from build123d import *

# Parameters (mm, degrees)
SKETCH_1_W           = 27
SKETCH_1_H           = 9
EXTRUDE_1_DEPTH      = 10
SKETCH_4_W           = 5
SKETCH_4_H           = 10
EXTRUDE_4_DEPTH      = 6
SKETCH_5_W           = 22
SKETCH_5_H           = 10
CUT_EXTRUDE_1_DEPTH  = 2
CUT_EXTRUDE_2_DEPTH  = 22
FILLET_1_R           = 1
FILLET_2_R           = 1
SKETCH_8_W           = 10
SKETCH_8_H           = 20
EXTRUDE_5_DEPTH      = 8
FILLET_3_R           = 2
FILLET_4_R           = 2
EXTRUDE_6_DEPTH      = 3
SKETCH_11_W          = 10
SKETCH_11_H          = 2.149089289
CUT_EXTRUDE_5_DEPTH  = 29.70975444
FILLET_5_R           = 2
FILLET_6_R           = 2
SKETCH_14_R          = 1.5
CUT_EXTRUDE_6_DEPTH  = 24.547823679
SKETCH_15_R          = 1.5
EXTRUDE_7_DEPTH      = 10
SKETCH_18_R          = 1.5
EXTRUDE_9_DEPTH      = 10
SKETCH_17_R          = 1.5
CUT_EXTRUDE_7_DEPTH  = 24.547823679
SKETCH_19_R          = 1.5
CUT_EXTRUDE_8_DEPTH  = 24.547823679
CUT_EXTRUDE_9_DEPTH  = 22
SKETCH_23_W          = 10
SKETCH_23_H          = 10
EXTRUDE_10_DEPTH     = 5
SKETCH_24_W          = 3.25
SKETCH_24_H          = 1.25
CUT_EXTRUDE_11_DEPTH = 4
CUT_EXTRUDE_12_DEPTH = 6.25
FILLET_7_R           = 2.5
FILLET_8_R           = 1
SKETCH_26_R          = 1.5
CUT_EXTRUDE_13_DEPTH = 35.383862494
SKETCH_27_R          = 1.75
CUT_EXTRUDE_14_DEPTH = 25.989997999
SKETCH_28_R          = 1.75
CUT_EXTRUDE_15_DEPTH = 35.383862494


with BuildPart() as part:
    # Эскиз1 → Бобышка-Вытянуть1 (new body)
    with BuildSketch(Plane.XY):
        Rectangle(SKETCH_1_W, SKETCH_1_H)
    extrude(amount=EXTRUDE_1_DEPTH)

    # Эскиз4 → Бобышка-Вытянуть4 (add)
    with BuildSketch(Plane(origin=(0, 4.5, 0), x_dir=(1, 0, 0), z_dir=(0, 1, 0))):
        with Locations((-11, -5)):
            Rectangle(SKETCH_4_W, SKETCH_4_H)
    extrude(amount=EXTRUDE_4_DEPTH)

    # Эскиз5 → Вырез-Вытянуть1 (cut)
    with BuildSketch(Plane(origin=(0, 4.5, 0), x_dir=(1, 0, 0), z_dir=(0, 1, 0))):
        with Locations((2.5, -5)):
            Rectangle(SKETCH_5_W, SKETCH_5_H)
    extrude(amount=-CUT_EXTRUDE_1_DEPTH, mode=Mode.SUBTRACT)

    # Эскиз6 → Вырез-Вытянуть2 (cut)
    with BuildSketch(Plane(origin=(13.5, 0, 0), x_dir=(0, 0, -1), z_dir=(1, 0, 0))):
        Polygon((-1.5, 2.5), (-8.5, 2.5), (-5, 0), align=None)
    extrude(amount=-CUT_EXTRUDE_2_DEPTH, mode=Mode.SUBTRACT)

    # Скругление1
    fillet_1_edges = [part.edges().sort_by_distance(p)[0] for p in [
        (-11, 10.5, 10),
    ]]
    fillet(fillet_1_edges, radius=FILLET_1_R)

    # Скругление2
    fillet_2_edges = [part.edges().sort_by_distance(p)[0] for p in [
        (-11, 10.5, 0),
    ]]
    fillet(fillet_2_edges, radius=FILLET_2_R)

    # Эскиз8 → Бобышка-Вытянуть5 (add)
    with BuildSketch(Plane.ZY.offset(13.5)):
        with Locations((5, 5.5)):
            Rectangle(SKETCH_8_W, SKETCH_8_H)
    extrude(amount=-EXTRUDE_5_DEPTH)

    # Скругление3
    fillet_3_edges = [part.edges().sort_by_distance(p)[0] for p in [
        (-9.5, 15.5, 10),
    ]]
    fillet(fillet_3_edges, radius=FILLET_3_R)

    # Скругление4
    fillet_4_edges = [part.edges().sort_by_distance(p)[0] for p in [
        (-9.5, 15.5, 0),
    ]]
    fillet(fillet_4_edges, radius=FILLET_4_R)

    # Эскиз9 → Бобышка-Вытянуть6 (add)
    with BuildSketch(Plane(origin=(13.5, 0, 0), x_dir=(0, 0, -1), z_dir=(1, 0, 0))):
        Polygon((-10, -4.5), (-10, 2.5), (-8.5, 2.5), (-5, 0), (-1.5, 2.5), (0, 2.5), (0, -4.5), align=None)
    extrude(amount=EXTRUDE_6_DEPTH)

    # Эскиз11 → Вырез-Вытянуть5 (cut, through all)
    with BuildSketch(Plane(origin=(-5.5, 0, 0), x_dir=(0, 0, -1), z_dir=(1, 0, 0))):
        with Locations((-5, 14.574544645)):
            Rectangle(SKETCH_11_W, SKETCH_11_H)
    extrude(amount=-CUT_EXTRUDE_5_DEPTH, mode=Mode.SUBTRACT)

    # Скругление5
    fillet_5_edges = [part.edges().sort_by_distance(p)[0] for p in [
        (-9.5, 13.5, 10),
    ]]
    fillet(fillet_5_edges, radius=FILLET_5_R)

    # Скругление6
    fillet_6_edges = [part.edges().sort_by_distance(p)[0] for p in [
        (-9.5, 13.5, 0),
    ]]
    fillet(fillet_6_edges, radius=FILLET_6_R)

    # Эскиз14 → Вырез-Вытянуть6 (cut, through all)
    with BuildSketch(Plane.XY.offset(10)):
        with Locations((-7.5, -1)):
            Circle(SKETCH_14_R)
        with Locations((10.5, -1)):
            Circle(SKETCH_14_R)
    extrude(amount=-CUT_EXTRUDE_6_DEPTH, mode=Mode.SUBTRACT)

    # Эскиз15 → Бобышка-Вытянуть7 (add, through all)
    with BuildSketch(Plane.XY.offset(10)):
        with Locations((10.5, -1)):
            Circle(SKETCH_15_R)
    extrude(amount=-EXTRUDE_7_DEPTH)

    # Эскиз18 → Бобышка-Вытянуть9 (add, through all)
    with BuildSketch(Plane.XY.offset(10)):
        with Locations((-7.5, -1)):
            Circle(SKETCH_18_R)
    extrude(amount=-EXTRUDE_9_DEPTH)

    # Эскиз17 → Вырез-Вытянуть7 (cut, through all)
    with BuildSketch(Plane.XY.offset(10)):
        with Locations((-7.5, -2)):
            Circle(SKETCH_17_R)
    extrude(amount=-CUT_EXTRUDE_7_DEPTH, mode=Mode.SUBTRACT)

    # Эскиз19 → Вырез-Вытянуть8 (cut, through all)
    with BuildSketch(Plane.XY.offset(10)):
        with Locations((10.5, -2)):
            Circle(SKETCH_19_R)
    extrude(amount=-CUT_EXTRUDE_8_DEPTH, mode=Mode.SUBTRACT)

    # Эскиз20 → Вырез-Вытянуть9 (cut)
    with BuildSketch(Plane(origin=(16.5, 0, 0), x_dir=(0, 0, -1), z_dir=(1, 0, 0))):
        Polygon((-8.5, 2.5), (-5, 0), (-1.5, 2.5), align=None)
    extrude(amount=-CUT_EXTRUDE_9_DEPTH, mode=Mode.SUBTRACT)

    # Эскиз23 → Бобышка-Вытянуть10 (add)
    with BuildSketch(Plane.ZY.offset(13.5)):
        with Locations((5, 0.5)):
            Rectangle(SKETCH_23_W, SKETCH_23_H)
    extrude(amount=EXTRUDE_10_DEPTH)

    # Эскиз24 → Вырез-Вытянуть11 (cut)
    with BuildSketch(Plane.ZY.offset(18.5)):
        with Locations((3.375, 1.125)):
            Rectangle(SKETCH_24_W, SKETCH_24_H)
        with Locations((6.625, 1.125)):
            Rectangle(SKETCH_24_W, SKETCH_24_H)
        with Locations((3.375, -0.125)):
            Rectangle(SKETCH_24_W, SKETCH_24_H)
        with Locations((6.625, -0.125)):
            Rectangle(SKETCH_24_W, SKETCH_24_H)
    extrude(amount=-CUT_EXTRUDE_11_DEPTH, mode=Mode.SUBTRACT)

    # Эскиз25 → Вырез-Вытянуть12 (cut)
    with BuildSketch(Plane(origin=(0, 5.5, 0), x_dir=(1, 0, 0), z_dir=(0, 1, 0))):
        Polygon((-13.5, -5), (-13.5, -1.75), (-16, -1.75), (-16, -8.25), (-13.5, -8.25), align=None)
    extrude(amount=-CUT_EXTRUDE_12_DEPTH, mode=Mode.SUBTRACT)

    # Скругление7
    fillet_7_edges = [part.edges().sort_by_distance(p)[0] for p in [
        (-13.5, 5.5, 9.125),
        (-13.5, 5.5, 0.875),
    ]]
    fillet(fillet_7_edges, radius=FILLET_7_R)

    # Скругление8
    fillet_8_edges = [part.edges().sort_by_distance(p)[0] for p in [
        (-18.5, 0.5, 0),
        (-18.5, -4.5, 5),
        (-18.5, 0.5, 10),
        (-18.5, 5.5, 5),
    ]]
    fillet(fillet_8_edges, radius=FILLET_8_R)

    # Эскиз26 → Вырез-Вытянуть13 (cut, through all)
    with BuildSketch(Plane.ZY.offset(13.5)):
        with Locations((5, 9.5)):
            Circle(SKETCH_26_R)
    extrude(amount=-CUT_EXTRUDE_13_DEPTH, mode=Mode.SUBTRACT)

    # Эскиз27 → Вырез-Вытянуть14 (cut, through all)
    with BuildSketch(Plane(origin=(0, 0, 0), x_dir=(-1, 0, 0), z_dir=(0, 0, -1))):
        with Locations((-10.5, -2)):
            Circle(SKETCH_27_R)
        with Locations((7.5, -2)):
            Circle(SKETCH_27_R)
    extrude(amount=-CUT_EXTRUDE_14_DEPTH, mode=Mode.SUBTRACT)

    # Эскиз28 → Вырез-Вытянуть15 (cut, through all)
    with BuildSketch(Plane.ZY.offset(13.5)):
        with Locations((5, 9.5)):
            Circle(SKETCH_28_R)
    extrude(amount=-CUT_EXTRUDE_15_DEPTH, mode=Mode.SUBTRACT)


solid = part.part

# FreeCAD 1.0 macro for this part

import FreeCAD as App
import Part
import Sketcher


def edges_at(feature, points):
    """Names of the edges that pass closest to the given points."""
    edges = feature.Shape.Edges
    near = lambda p: min(range(len(edges)), key=lambda i: edges[i].distToShape(Part.Vertex(*p))[0])
    return sorted({f"Edge{near(p) + 1}" for p in points})


def add_polygon(sketch, points):
    """Adds a closed chain of lines whose ends are joined by coincident constraints."""
    first, n = sketch.GeometryCount, len(points)
    for a, b in zip(points, points[1:] + points[:1]):
        sketch.addGeometry(Part.LineSegment(App.Vector(*a, 0), App.Vector(*b, 0)), False)
    for i in range(n):
        sketch.addConstraint(Sketcher.Constraint("Coincident", first + i, 2, first + (i + 1) % n, 1))

doc = App.newDocument("Part")
body = doc.addObject("PartDesign::Body", "Body")

sketch1 = body.newObject("Sketcher::SketchObject", "Sketch")
sketch1.AttachmentSupport = (doc.getObject("XY_Plane"), [""])
sketch1.MapMode = "FlatFace"
add_polygon(sketch1, [(-14, 4), (-14, -4), (14, -4), (14, 4)])
sketch1.addConstraint([
    Sketcher.Constraint("Vertical", 0),
    Sketcher.Constraint("Horizontal", 1),
    Sketcher.Constraint("Vertical", 2),
    Sketcher.Constraint("Horizontal", 3),
    Sketcher.Constraint("Symmetric", 0, 2, 2, 2, -1, 1),
    Sketcher.Constraint("DistanceX", 1, 1, 1, 2, 27.0),
    Sketcher.Constraint("DistanceY", 0, 2, 0, 1, 9.0),
])
pad1 = body.newObject("PartDesign::Pad", "Pad")
pad1.Profile = sketch1
pad1.Length = 10

sketch2 = body.newObject("Sketcher::SketchObject", "Sketch001")
sketch2.AttachmentSupport = (doc.getObject("XZ_Plane"), [""])
sketch2.MapMode = "FlatFace"
sketch2.AttachmentOffset = App.Placement(App.Vector(0, 0, -4.5), App.Rotation())
add_polygon(sketch2, [(-14, 0), (-14, 10), (-8, 10), (-8, 0)])
sketch2.addConstraint([
    Sketcher.Constraint("Vertical", 0),
    Sketcher.Constraint("Horizontal", 1),
    Sketcher.Constraint("Vertical", 2),
    Sketcher.Constraint("Horizontal", 3),
    Sketcher.Constraint("PointOnObject", 2, 2, -1),
    Sketcher.Constraint("DistanceX", 1, 1, 1, 2, 5.0),
    Sketcher.Constraint("DistanceY", 0, 1, 0, 2, 10.0),
    Sketcher.Constraint("DistanceX", 0, 2, -1, 1, 13.5),
])
pad2 = body.newObject("PartDesign::Pad", "Pad001")
pad2.Profile = sketch2
pad2.Length = 6
pad2.Reversed = True

sketch3 = body.newObject("Sketcher::SketchObject", "Sketch002")
sketch3.AttachmentSupport = (doc.getObject("XZ_Plane"), [""])
sketch3.MapMode = "FlatFace"
sketch3.AttachmentOffset = App.Placement(App.Vector(0, 0, -4.5), App.Rotation())
add_polygon(sketch3, [(-8, 0), (-8, 10), (14, 10), (14, 0)])
sketch3.addConstraint([
    Sketcher.Constraint("Vertical", 0),
    Sketcher.Constraint("Horizontal", 1),
    Sketcher.Constraint("Vertical", 2),
    Sketcher.Constraint("Horizontal", 3),
    Sketcher.Constraint("PointOnObject", 2, 2, -1),
    Sketcher.Constraint("DistanceX", 1, 1, 1, 2, 22.0),
    Sketcher.Constraint("DistanceY", 0, 1, 0, 2, 10.0),
    Sketcher.Constraint("DistanceX", 0, 2, -1, 1, 8.5),
])
pocket1 = body.newObject("PartDesign::Pocket", "Pocket")
pocket1.Profile = sketch3
pocket1.Length = 2
pocket1.Reversed = True

sketch4 = body.newObject("Sketcher::SketchObject", "Sketch003")
sketch4.AttachmentSupport = (doc.getObject("YZ_Plane"), [""])
sketch4.MapMode = "FlatFace"
sketch4.AttachmentOffset = App.Placement(App.Vector(0, 0, 13.5), App.Rotation())
add_polygon(sketch4, [(2.5, 1.5), (2.5, 8.5), (0, 5)])
sketch4.addConstraint([
    Sketcher.Constraint("Vertical", 0),
    Sketcher.Constraint("PointOnObject", 1, 2, -2),
    Sketcher.Constraint("Equal", 1, 2),
    Sketcher.Constraint("DistanceY", 0, 1, 0, 2, 7.0),
    Sketcher.Constraint("DistanceY", -1, 1, 1, 2, 5.0),
    Sketcher.Constraint("DistanceX", -1, 1, 0, 2, 2.5),
])
pocket2 = body.newObject("PartDesign::Pocket", "Pocket001")
pocket2.Profile = sketch4
pocket2.Length = 22
doc.recompute()

fillet = body.newObject("PartDesign::Fillet", "Fillet")
fillet.Base = (pocket2, edges_at(pocket2, [(-11, 10.5, 10)]))
fillet.Radius = 1
doc.recompute()

fillet2 = body.newObject("PartDesign::Fillet", "Fillet001")
fillet2.Base = (fillet, edges_at(fillet, [(-11, 10.5, 0)]))
fillet2.Radius = 1

sketch5 = body.newObject("Sketcher::SketchObject", "Sketch004")
sketch5.AttachmentSupport = (doc.getObject("YZ_Plane"), [""])
sketch5.MapMode = "FlatFace"
sketch5.AttachmentOffset = App.Placement(App.Vector(0, 0, -13.5), App.Rotation())
add_polygon(sketch5, [(16, 0), (-4, 0), (-4, 10), (16, 10)])
sketch5.addConstraint([
    Sketcher.Constraint("Horizontal", 0),
    Sketcher.Constraint("Vertical", 1),
    Sketcher.Constraint("Horizontal", 2),
    Sketcher.Constraint("Vertical", 3),
    Sketcher.Constraint("PointOnObject", 0, 2, -1),
    Sketcher.Constraint("DistanceX", 0, 2, 0, 1, 20.0),
    Sketcher.Constraint("DistanceY", 1, 1, 1, 2, 10.0),
    Sketcher.Constraint("DistanceX", 0, 2, -1, 1, 4.5),
])
pad3 = body.newObject("PartDesign::Pad", "Pad002")
pad3.Profile = sketch5
pad3.Length = 8
doc.recompute()

fillet3 = body.newObject("PartDesign::Fillet", "Fillet002")
fillet3.Base = (pad3, edges_at(pad3, [(-9.5, 15.5, 10)]))
fillet3.Radius = 2
doc.recompute()

fillet4 = body.newObject("PartDesign::Fillet", "Fillet003")
fillet4.Base = (fillet3, edges_at(fillet3, [(-9.5, 15.5, 0)]))
fillet4.Radius = 2

sketch6 = body.newObject("Sketcher::SketchObject", "Sketch005")
sketch6.AttachmentSupport = (doc.getObject("YZ_Plane"), [""])
sketch6.MapMode = "FlatFace"
sketch6.AttachmentOffset = App.Placement(App.Vector(0, 0, 13.5), App.Rotation())
add_polygon(sketch6, [(2.5, 10), (-4.5, 10), (-4.5, 0), (2.5, 0), (2.5, 1.5), (0, 5), (2.5, 8.5)])
sketch6.addConstraint([
    Sketcher.Constraint("Horizontal", 0),
    Sketcher.Constraint("Vertical", 1),
    Sketcher.Constraint("Horizontal", 2),
    Sketcher.Constraint("Vertical", 3),
    Sketcher.Constraint("Vertical", 6),
    Sketcher.Constraint("PointOnObject", 1, 2, -1),
    Sketcher.Constraint("PointOnObject", 4, 2, -2),
    Sketcher.Constraint("Vertical", 3, 2, 5, 2),
    Sketcher.Constraint("Equal", 3, 6),
    Sketcher.Constraint("Equal", 4, 5),
    Sketcher.Constraint("DistanceX", 0, 2, 0, 1, 7.0),
    Sketcher.Constraint("DistanceY", 1, 2, 1, 1, 10.0),
    Sketcher.Constraint("DistanceY", 3, 1, 3, 2, 1.5),
    Sketcher.Constraint("DistanceX", 0, 2, -1, 1, 4.5),
])
pad4 = body.newObject("PartDesign::Pad", "Pad003")
pad4.Profile = sketch6
pad4.Length = 3

sketch7 = body.newObject("Sketcher::SketchObject", "Sketch006")
sketch7.AttachmentSupport = (doc.getObject("YZ_Plane"), [""])
sketch7.MapMode = "FlatFace"
sketch7.AttachmentOffset = App.Placement(App.Vector(0, 0, -5.5), App.Rotation())
add_polygon(sketch7, [(15.6, 10), (13.5, 10), (13.5, 0), (15.6, 0)])
sketch7.addConstraint([
    Sketcher.Constraint("Horizontal", 0),
    Sketcher.Constraint("Vertical", 1),
    Sketcher.Constraint("Horizontal", 2),
    Sketcher.Constraint("Vertical", 3),
    Sketcher.Constraint("PointOnObject", 1, 2, -1),
    Sketcher.Constraint("DistanceY", 1, 2, 1, 1, 10.0),
    Sketcher.Constraint("DistanceX", -1, 1, 0, 2, 13.5),
    Sketcher.Constraint("DistanceX", 0, 2, 0, 1, 2.149089),
])
pocket3 = body.newObject("PartDesign::Pocket", "Pocket002")
pocket3.Profile = sketch7
pocket3.Type = "ThroughAll"
doc.recompute()

fillet5 = body.newObject("PartDesign::Fillet", "Fillet004")
fillet5.Base = (pocket3, edges_at(pocket3, [(-9.5, 13.5, 10)]))
fillet5.Radius = 2
doc.recompute()

fillet6 = body.newObject("PartDesign::Fillet", "Fillet005")
fillet6.Base = (fillet5, edges_at(fillet5, [(-9.5, 13.5, 0)]))
fillet6.Radius = 2

sketch8 = body.newObject("Sketcher::SketchObject", "Sketch007")
sketch8.AttachmentSupport = (doc.getObject("XY_Plane"), [""])
sketch8.MapMode = "FlatFace"
sketch8.AttachmentOffset = App.Placement(App.Vector(0, 0, 10), App.Rotation())
sketch8.addGeometry([
    Part.Circle(App.Vector(-7.5, -1, 0), App.Vector(0, 0, 1), 1.5),
    Part.Circle(App.Vector(10.5, -1, 0), App.Vector(0, 0, 1), 1.5),
], False)
sketch8.addConstraint([
    Sketcher.Constraint("Equal", 0, 1),
    Sketcher.Constraint("Horizontal", 0, 3, 1, 3),
    Sketcher.Constraint("Diameter", 0, 3.0),
    Sketcher.Constraint("DistanceY", 0, 3, -1, 1, 1.0),
    Sketcher.Constraint("DistanceX", 0, 3, 1, 3, 18.0),
    Sketcher.Constraint("DistanceX", 0, 3, -1, 1, 7.5),
])
pocket4 = body.newObject("PartDesign::Pocket", "Pocket003")
pocket4.Profile = sketch8
pocket4.Type = "ThroughAll"

sketch9 = body.newObject("Sketcher::SketchObject", "Sketch008")
sketch9.AttachmentSupport = (doc.getObject("XY_Plane"), [""])
sketch9.MapMode = "FlatFace"
sketch9.AttachmentOffset = App.Placement(App.Vector(0, 0, 10), App.Rotation())
sketch9.addGeometry(Part.Circle(App.Vector(10.5, -1, 0), App.Vector(0, 0, 1), 1.5), False)
sketch9.addConstraint([
    Sketcher.Constraint("Diameter", 0, 3.0),
    Sketcher.Constraint("DistanceY", 0, 3, -1, 1, 1.0),
    Sketcher.Constraint("DistanceX", -1, 1, 0, 3, 10.5),
])
pad5 = body.newObject("PartDesign::Pad", "Pad004")
pad5.Profile = sketch9
pad5.Length = 10
pad5.Reversed = True

sketch10 = body.newObject("Sketcher::SketchObject", "Sketch009")
sketch10.AttachmentSupport = (doc.getObject("XY_Plane"), [""])
sketch10.MapMode = "FlatFace"
sketch10.AttachmentOffset = App.Placement(App.Vector(0, 0, 10), App.Rotation())
sketch10.addGeometry(Part.Circle(App.Vector(-7.5, -1, 0), App.Vector(0, 0, 1), 1.5), False)
sketch10.addConstraint([
    Sketcher.Constraint("Diameter", 0, 3.0),
    Sketcher.Constraint("DistanceY", 0, 3, -1, 1, 1.0),
    Sketcher.Constraint("DistanceX", 0, 3, -1, 1, 7.5),
])
pad6 = body.newObject("PartDesign::Pad", "Pad005")
pad6.Profile = sketch10
pad6.Length = 10
pad6.Reversed = True

sketch11 = body.newObject("Sketcher::SketchObject", "Sketch010")
sketch11.AttachmentSupport = (doc.getObject("XY_Plane"), [""])
sketch11.MapMode = "FlatFace"
sketch11.AttachmentOffset = App.Placement(App.Vector(0, 0, 10), App.Rotation())
sketch11.addGeometry(Part.Circle(App.Vector(-7.5, -2, 0), App.Vector(0, 0, 1), 1.5), False)
sketch11.addConstraint([
    Sketcher.Constraint("Diameter", 0, 3.0),
    Sketcher.Constraint("DistanceY", 0, 3, -1, 1, 2.0),
    Sketcher.Constraint("DistanceX", 0, 3, -1, 1, 7.5),
])
pocket5 = body.newObject("PartDesign::Pocket", "Pocket004")
pocket5.Profile = sketch11
pocket5.Type = "ThroughAll"

sketch12 = body.newObject("Sketcher::SketchObject", "Sketch011")
sketch12.AttachmentSupport = (doc.getObject("XY_Plane"), [""])
sketch12.MapMode = "FlatFace"
sketch12.AttachmentOffset = App.Placement(App.Vector(0, 0, 10), App.Rotation())
sketch12.addGeometry(Part.Circle(App.Vector(10.5, -2, 0), App.Vector(0, 0, 1), 1.5), False)
sketch12.addConstraint([
    Sketcher.Constraint("Diameter", 0, 3.0),
    Sketcher.Constraint("DistanceY", 0, 3, -1, 1, 2.0),
    Sketcher.Constraint("DistanceX", -1, 1, 0, 3, 10.5),
])
pocket6 = body.newObject("PartDesign::Pocket", "Pocket005")
pocket6.Profile = sketch12
pocket6.Type = "ThroughAll"

sketch13 = body.newObject("Sketcher::SketchObject", "Sketch012")
sketch13.AttachmentSupport = (doc.getObject("YZ_Plane"), [""])
sketch13.MapMode = "FlatFace"
sketch13.AttachmentOffset = App.Placement(App.Vector(0, 0, 16.5), App.Rotation())
add_polygon(sketch13, [(2.5, 8.5), (0, 5), (2.5, 1.5)])
sketch13.addConstraint([
    Sketcher.Constraint("Vertical", 2),
    Sketcher.Constraint("PointOnObject", 0, 2, -2),
    Sketcher.Constraint("Equal", 0, 1),
    Sketcher.Constraint("DistanceY", 2, 1, 2, 2, 7.0),
    Sketcher.Constraint("DistanceY", -1, 1, 0, 2, 5.0),
    Sketcher.Constraint("DistanceX", -1, 1, 1, 2, 2.5),
])
pocket7 = body.newObject("PartDesign::Pocket", "Pocket006")
pocket7.Profile = sketch13
pocket7.Length = 22

sketch14 = body.newObject("Sketcher::SketchObject", "Sketch013")
sketch14.AttachmentSupport = (doc.getObject("YZ_Plane"), [""])
sketch14.MapMode = "FlatFace"
sketch14.AttachmentOffset = App.Placement(App.Vector(0, 0, -13.5), App.Rotation())
add_polygon(sketch14, [(6, 0), (-4, 0), (-4, 10), (6, 10)])
sketch14.addConstraint([
    Sketcher.Constraint("Horizontal", 0),
    Sketcher.Constraint("Vertical", 1),
    Sketcher.Constraint("Horizontal", 2),
    Sketcher.Constraint("Vertical", 3),
    Sketcher.Constraint("PointOnObject", 0, 2, -1),
    Sketcher.Constraint("Equal", 2, 1),
    Sketcher.Constraint("DistanceX", 0, 2, 0, 1, 10.0),
    Sketcher.Constraint("DistanceX", 0, 2, -1, 1, 4.5),
])
pad7 = body.newObject("PartDesign::Pad", "Pad006")
pad7.Profile = sketch14
pad7.Length = 5
pad7.Reversed = True

sketch15 = body.newObject("Sketcher::SketchObject", "Sketch014")
sketch15.AttachmentSupport = (doc.getObject("YZ_Plane"), [""])
sketch15.MapMode = "FlatFace"
sketch15.AttachmentOffset = App.Placement(App.Vector(0, 0, -18.5), App.Rotation())
add_polygon(sketch15, [(1.8, 1.8), (-0.8, 1.8), (-0.8, 8.2), (1.8, 8.2)])
sketch15.addConstraint([
    Sketcher.Constraint("Horizontal", 0),
    Sketcher.Constraint("Vertical", 1),
    Sketcher.Constraint("Horizontal", 2),
    Sketcher.Constraint("Vertical", 3),
    Sketcher.Constraint("DistanceX", 0, 2, 0, 1, 2.5),
    Sketcher.Constraint("DistanceY", 1, 1, 1, 2, 6.5),
    Sketcher.Constraint("DistanceX", 0, 2, -1, 1, 0.75),
    Sketcher.Constraint("DistanceY", -1, 1, 0, 2, 1.75),
])
pocket8 = body.newObject("PartDesign::Pocket", "Pocket007")
pocket8.Profile = sketch15
pocket8.Length = 4
pocket8.Reversed = True

sketch16 = body.newObject("Sketcher::SketchObject", "Sketch015")
sketch16.AttachmentSupport = (doc.getObject("XZ_Plane"), [""])
sketch16.MapMode = "FlatFace"
sketch16.AttachmentOffset = App.Placement(App.Vector(0, 0, -5.5), App.Rotation())
add_polygon(sketch16, [(-13.5, 1.8), (-16, 1.8), (-16, 8.2), (-13.5, 8.2)])
sketch16.addConstraint([
    Sketcher.Constraint("Horizontal", 0),
    Sketcher.Constraint("Vertical", 1),
    Sketcher.Constraint("Horizontal", 2),
    Sketcher.Constraint("Vertical", 3),
    Sketcher.Constraint("DistanceX", 0, 2, 0, 1, 2.5),
    Sketcher.Constraint("DistanceY", 1, 1, 1, 2, 6.5),
    Sketcher.Constraint("DistanceX", 0, 2, -1, 1, 16.0),
    Sketcher.Constraint("DistanceY", -1, 1, 0, 2, 1.75),
])
pocket9 = body.newObject("PartDesign::Pocket", "Pocket008")
pocket9.Profile = sketch16
pocket9.Length = 6.25
pocket9.Reversed = True
doc.recompute()

fillet7 = body.newObject("PartDesign::Fillet", "Fillet006")
fillet7.Base = (pocket9, edges_at(pocket9, [(-13.5, 5.5, 9.125), (-13.5, 5.5, 0.875)]))
fillet7.Radius = 2.5
doc.recompute()

fillet8 = body.newObject("PartDesign::Fillet", "Fillet007")
fillet8.Base = (fillet7, edges_at(fillet7, [
    (-18.5, 0.5, 0),
    (-18.5, -4.5, 5),
    (-18.5, 0.5, 10),
    (-18.5, 5.5, 5),
]))
fillet8.Radius = 1

sketch17 = body.newObject("Sketcher::SketchObject", "Sketch016")
sketch17.AttachmentSupport = (doc.getObject("YZ_Plane"), [""])
sketch17.MapMode = "FlatFace"
sketch17.AttachmentOffset = App.Placement(App.Vector(0, 0, -13.5), App.Rotation())
sketch17.addGeometry(Part.Circle(App.Vector(9.5, 5, 0), App.Vector(0, 0, 1), 1.5), False)
sketch17.addConstraint([
    Sketcher.Constraint("Diameter", 0, 3.0),
    Sketcher.Constraint("DistanceY", -1, 1, 0, 3, 5.0),
    Sketcher.Constraint("DistanceX", -1, 1, 0, 3, 9.5),
])
pocket10 = body.newObject("PartDesign::Pocket", "Pocket009")
pocket10.Profile = sketch17
pocket10.Type = "ThroughAll"
pocket10.Reversed = True

sketch18 = body.newObject("Sketcher::SketchObject", "Sketch017")
sketch18.AttachmentSupport = (doc.getObject("XY_Plane"), [""])
sketch18.MapMode = "FlatFace"
sketch18.addGeometry([
    Part.Circle(App.Vector(10.5, -2, 0), App.Vector(0, 0, 1), 1.8),
    Part.Circle(App.Vector(-7.5, -2, 0), App.Vector(0, 0, 1), 1.8),
], False)
sketch18.addConstraint([
    Sketcher.Constraint("Equal", 0, 1),
    Sketcher.Constraint("Horizontal", 0, 3, 1, 3),
    Sketcher.Constraint("Diameter", 0, 3.5),
    Sketcher.Constraint("DistanceY", 0, 3, -1, 1, 2.0),
    Sketcher.Constraint("DistanceX", 1, 3, 0, 3, 18.0),
    Sketcher.Constraint("DistanceX", -1, 1, 0, 3, 10.5),
])
pocket11 = body.newObject("PartDesign::Pocket", "Pocket010")
pocket11.Profile = sketch18
pocket11.Type = "ThroughAll"
pocket11.Reversed = True

sketch19 = body.newObject("Sketcher::SketchObject", "Sketch018")
sketch19.AttachmentSupport = (doc.getObject("YZ_Plane"), [""])
sketch19.MapMode = "FlatFace"
sketch19.AttachmentOffset = App.Placement(App.Vector(0, 0, -13.5), App.Rotation())
sketch19.addGeometry(Part.Circle(App.Vector(9.5, 5, 0), App.Vector(0, 0, 1), 1.8), False)
sketch19.addConstraint([
    Sketcher.Constraint("Diameter", 0, 3.5),
    Sketcher.Constraint("DistanceY", -1, 1, 0, 3, 5.0),
    Sketcher.Constraint("DistanceX", -1, 1, 0, 3, 9.5),
])
pocket12 = body.newObject("PartDesign::Pocket", "Pocket011")
pocket12.Profile = sketch19
pocket12.Type = "ThroughAll"
pocket12.Reversed = True

doc.recompute()
